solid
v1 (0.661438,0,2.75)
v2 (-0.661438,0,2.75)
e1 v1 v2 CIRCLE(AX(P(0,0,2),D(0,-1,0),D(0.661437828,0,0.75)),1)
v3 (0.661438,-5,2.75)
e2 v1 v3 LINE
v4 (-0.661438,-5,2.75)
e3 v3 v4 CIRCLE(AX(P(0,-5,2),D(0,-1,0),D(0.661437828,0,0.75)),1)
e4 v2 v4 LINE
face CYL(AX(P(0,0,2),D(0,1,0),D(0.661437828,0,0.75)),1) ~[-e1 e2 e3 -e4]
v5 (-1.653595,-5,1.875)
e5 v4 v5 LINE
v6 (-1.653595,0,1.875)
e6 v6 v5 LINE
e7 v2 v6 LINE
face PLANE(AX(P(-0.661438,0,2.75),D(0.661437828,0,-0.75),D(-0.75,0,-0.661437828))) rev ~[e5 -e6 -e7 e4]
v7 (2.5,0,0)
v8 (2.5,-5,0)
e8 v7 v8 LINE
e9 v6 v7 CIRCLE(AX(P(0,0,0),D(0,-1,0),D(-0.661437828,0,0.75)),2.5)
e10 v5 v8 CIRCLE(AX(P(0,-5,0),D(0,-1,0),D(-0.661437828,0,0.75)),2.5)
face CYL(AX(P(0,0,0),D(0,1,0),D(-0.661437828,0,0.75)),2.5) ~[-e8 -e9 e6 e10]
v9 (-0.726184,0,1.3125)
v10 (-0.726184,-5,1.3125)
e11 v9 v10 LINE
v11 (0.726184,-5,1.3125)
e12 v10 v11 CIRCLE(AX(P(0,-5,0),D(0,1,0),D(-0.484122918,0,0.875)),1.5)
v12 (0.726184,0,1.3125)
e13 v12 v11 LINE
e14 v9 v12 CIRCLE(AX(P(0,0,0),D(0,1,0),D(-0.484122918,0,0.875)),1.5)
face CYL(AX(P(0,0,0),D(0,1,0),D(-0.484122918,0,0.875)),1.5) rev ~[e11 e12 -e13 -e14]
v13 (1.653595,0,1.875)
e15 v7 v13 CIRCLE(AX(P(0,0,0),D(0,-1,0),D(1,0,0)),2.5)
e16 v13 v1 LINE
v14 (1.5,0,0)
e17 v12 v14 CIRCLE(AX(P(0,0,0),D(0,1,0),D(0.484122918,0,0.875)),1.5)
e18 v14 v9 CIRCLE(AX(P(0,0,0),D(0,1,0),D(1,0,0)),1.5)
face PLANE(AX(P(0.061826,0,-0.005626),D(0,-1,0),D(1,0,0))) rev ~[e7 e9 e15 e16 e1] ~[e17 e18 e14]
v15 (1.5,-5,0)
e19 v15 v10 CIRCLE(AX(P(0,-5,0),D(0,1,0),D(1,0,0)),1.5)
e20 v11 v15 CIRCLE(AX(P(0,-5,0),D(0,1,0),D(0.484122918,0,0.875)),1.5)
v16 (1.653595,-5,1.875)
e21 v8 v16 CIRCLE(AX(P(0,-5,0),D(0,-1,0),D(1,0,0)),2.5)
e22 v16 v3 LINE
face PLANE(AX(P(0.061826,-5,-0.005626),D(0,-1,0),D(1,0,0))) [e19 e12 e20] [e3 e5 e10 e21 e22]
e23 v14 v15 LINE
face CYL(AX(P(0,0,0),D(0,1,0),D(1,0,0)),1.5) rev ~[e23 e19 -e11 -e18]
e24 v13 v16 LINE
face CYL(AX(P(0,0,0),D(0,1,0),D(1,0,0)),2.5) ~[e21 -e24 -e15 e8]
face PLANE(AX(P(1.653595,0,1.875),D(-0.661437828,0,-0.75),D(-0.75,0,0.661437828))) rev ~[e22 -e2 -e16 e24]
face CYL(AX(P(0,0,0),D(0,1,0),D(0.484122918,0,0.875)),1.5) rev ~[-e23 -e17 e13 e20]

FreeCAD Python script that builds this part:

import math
import FreeCAD as App
import Part
import Sketcher

doc = App.newDocument("Part")
body = doc.addObject("PartDesign::Body", "Body")

# Sketch on XZ plane
sketch1 = body.newObject("Sketcher::SketchObject", "Sketch")
sketch1.AttachmentSupport = (doc.getObject("XZ_Plane"), [""])
sketch1.MapMode = "FlatFace"
sketch1.addGeometry([
    Part.ArcOfCircle(Part.Circle(App.Vector(0, 0, 0), App.Vector(0, 0, 1), 2.5), math.radians(131.409622), math.radians(360)),  # 0
    Part.ArcOfCircle(Part.Circle(App.Vector(0, 0, 0), App.Vector(0, 0, 1), 2.5), math.radians(0), math.radians(48.590378)),  # 1
    Part.LineSegment(App.Vector(1.653595, 1.875, 0), App.Vector(0.661438, 2.75, 0)),  # 2
    Part.ArcOfCircle(Part.Circle(App.Vector(0, 2, 0), App.Vector(0, 0, 1), 1), math.radians(48.590378), math.radians(131.409622)),  # 3
    Part.LineSegment(App.Vector(-0.661438, 2.75, 0), App.Vector(-1.653595, 1.875, 0)),  # 4
    Part.ArcOfCircle(Part.Circle(App.Vector(0, 0, 0), App.Vector(0, 0, 1), 1.5), math.radians(0), math.radians(61.044976)),  # 5
    Part.ArcOfCircle(Part.Circle(App.Vector(0, 0, 0), App.Vector(0, 0, 1), 1.5), math.radians(118.955024), math.radians(360)),  # 6
    Part.ArcOfCircle(Part.Circle(App.Vector(0, 0, 0), App.Vector(0, 0, 1), 1.5), math.radians(61.044976), math.radians(118.955024)),  # 7
], False)
sketch1.addConstraint([
    Sketcher.Constraint("Tangent", 0, 2, 1, 1),
    Sketcher.Constraint("Tangent", 1, 2, 2, 1),
    Sketcher.Constraint("Tangent", 2, 2, 3, 1),
    Sketcher.Constraint("Tangent", 3, 2, 4, 1),
    Sketcher.Constraint("Tangent", 4, 2, 0, 1),
    Sketcher.Constraint("Tangent", 5, 1, 6, 2),
    Sketcher.Constraint("Tangent", 6, 1, 7, 2),
    Sketcher.Constraint("Tangent", 7, 1, 5, 2),
    Sketcher.Constraint("Coincident", 0, 3, -1, 1),
    Sketcher.Constraint("Coincident", 5, 3, -1, 1),
    Sketcher.Constraint("Equal", 0, 1),
    Sketcher.Constraint("PointOnObject", 3, 3, -2),
    Sketcher.Constraint("PointOnObject", 0, 2, -1),
    Sketcher.Constraint("PointOnObject", 5, 1, -1),
    Sketcher.Constraint("Horizontal", 6, 1, 7, 1),
    Sketcher.Constraint("Radius", 3, 1.0),
    Sketcher.Constraint("Radius", 0, 2.5),
    Sketcher.Constraint("Radius", 5, 1.5),
    Sketcher.Constraint("DistanceY", -1, 1, 3, 3, 2.0),
    Sketcher.Constraint("DistanceY", -1, 1, 6, 1, 1.3125),
])
pad1 = body.newObject("PartDesign::Pad", "Pad")
pad1.Profile = sketch1
pad1.Length = 5

doc.recompute()
